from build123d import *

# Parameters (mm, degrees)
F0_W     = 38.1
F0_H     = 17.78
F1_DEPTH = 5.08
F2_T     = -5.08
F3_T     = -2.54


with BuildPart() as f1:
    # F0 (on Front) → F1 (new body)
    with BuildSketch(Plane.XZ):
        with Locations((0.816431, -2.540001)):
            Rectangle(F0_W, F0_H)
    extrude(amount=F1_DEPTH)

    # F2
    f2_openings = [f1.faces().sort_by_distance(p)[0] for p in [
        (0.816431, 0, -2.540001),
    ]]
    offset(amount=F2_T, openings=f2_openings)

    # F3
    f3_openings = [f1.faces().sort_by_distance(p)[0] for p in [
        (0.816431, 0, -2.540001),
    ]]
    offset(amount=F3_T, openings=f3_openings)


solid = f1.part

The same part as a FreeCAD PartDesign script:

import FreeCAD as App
import Part
import Sketcher

V = App.Vector
Q = App.Units.Quantity


def faces_at(feature, points):
    """Names of the faces that lie closest to the given points."""
    faces = feature.Shape.Faces
    near = lambda p: min(range(len(faces)), key=lambda i: faces[i].distToShape(Part.Vertex(*p))[0])
    return sorted({f"Face{near(p) + 1}" for p in points})


def add_polygon(sketch, points):
    """Adds a closed chain of lines whose ends are joined by coincident constraints."""
    first, n = sketch.GeometryCount, len(points)
    for a, b in zip(points, points[1:] + points[:1]):
        sketch.addGeometry(Part.LineSegment(App.Vector(*a, 0), App.Vector(*b, 0)), False)
    for i in range(n):
        sketch.addConstraint(Sketcher.Constraint("Coincident", first + i, 2, first + (i + 1) % n, 1))

doc = App.newDocument("Part")
params = doc.addObject("Spreadsheet::Sheet", "Params")
for row, (alias, value) in enumerate([
    ("sketch1_width", "1.5 in"),
    ("sketch1_height", "0.7 in"),
    ("pad1_length", "0.2 in"),
    ("thickness_wall", "0.2 in"),
    ("thickness2_wall", "0.1 in"),
], start=1):
    params.set(f"A{row}", alias)
    params.set(f"B{row}", "=" + value)
    params.setAlias(f"B{row}", alias)

body = doc.addObject("PartDesign::Body", "Body")

# Sketch on XZ plane
sketch1 = body.newObject("Sketcher::SketchObject", "Sketch")
sketch1.AttachmentSupport = (doc.getObject("XZ_Plane"), [""])
sketch1.MapMode = "FlatFace"
add_polygon(sketch1, [(-18.233569, 6.349999), (-18.233569, -11.430001), (19.866431, -11.430001), (19.866431, 6.349999)])  # lines 0-3
sketch1.addConstraint(Sketcher.Constraint("Vertical", 0))
sketch1.addConstraint(Sketcher.Constraint("Horizontal", 1))
sketch1.addConstraint(Sketcher.Constraint("Vertical", 2))
sketch1.addConstraint(Sketcher.Constraint("Horizontal", 3))
sketch1.addConstraint(Sketcher.Constraint("DistanceX", 1, 1, 1, 2, Q("1.5 in")))
sketch1.addConstraint(Sketcher.Constraint("DistanceY", 0, 2, 0, 1, Q("0.7 in")))
sketch1.addConstraint(Sketcher.Constraint("DistanceY", 0, 2, -1, 1, Q("0.45 in")))
sketch1.addConstraint(Sketcher.Constraint("DistanceX", 0, 2, -1, 1, 18.233569))
sketch1.setExpression("Constraints[8]", "Params.sketch1_width")
sketch1.setExpression("Constraints[9]", "Params.sketch1_height")
pad1 = body.newObject("PartDesign::Pad", "Pad")
pad1.Profile = sketch1
pad1.setExpression("Length", "Params.pad1_length")
doc.recompute()

thickness = body.newObject("PartDesign::Thickness", "Thickness")
thickness.Base = (pad1, faces_at(pad1, [(0.816, 0, -2.54)]))
thickness.setExpression("Value", "Params.thickness_wall")
thickness.Reversed = True
thickness.Join = "Arc"
doc.recompute()

thickness2 = body.newObject("PartDesign::Thickness", "Thickness001")
thickness2.Base = (thickness, faces_at(thickness, [(0.816, 0, -2.54)]))
thickness2.setExpression("Value", "Params.thickness2_wall")
thickness2.Reversed = True
thickness2.Join = "Arc"

doc.recompute()
